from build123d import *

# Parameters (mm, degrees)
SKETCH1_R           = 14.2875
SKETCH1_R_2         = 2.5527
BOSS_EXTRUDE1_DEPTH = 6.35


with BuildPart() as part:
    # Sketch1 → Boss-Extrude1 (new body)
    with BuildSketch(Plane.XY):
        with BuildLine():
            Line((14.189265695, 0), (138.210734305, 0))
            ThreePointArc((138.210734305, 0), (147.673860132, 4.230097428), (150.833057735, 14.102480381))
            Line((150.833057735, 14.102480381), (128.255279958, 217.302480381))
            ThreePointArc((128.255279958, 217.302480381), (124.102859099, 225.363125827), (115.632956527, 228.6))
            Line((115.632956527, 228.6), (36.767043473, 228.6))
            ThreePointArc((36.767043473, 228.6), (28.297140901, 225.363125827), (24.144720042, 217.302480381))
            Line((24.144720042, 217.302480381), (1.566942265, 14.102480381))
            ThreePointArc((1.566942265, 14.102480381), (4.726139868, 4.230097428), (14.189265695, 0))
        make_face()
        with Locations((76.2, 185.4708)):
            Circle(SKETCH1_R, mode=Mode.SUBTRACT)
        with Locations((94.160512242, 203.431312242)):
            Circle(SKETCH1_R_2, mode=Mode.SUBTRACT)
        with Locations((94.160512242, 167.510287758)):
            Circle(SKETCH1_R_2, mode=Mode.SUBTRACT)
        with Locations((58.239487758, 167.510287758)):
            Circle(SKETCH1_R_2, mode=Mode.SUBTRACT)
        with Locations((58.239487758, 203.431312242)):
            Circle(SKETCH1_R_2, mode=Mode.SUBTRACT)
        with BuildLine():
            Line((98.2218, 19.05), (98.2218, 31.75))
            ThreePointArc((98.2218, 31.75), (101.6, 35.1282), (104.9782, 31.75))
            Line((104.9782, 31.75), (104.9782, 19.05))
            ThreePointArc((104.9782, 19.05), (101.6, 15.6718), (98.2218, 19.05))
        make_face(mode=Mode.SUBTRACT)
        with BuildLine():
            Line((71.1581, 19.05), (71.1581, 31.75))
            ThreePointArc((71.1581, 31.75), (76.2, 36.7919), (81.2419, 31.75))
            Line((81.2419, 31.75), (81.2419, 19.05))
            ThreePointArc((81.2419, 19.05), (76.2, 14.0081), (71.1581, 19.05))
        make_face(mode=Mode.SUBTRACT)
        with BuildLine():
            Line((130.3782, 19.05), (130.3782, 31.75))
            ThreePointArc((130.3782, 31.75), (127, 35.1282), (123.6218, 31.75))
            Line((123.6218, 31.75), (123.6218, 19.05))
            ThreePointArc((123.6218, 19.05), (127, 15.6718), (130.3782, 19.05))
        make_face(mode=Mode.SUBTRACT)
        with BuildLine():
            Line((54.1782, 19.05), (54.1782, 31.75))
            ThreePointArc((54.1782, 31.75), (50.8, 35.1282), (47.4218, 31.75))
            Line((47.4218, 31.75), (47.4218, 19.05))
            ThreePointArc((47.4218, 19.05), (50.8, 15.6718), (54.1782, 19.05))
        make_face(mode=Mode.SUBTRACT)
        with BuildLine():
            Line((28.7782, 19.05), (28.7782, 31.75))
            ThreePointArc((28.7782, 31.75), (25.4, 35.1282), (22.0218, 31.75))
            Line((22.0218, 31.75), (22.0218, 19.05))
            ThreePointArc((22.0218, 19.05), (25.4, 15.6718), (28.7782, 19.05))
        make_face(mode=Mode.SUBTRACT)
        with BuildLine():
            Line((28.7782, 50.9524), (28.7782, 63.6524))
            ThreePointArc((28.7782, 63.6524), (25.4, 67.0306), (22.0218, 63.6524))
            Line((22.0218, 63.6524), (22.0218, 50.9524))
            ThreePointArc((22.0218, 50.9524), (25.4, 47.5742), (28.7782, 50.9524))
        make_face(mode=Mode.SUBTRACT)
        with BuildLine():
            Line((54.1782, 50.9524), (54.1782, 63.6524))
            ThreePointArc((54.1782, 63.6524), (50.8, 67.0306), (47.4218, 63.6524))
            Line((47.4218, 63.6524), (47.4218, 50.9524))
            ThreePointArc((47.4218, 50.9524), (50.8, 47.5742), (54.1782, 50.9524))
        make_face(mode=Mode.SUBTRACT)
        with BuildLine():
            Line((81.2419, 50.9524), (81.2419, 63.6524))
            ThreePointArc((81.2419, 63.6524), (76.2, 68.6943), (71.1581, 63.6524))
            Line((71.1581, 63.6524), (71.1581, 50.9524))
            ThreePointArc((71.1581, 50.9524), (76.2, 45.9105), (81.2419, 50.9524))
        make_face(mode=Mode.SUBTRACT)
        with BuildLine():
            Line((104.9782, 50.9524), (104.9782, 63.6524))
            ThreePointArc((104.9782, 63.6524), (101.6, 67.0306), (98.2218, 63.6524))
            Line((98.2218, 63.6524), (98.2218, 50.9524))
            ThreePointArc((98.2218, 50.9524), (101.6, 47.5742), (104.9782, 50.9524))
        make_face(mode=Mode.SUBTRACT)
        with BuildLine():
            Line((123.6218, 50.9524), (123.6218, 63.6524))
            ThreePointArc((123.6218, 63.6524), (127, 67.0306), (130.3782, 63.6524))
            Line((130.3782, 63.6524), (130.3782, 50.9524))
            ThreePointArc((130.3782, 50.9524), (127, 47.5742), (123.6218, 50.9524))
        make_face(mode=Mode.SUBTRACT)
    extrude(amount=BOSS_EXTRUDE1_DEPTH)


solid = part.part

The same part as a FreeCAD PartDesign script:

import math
import FreeCAD as App
import Part
import Sketcher

V = App.Vector
Q = App.Units.Quantity

doc = App.newDocument("Part")
params = doc.addObject("Spreadsheet::Sheet", "Params")
for row, (alias, value) in enumerate([
    ("sketch1_radius", "0.5 in"),
    ("sketch1_diameter", "0.201 in"),
    ("sketch1_diameter2", "1.125 in"),
    ("sketch1_height", "0.5 in"),
    ("sketch1_radius2", "0.133 in"),
    ("pad1_length", "0.25 in"),
], start=1):
    params.set(f"A{row}", alias)
    params.set(f"B{row}", "=" + value)
    params.setAlias(f"B{row}", alias)

body = doc.addObject("PartDesign::Body", "Body")

# Sketch on XY plane
sketch1 = body.newObject("Sketcher::SketchObject", "Sketch")
sketch1.AttachmentSupport = (doc.getObject("XY_Plane"), [""])
sketch1.MapMode = "FlatFace"
sketch1.addGeometry([
    Part.LineSegment(V(14.189266, 0, 0), V(138.210734, 0, 0)),  # 0
    Part.ArcOfCircle(Part.Circle(V(138.210734, 12.7, 0), V(0, 0, 1), 12.7), math.radians(-90), math.radians(6.340192)),  # 1
    Part.LineSegment(V(150.833058, 14.10248, 0), V(128.25528, 217.30248, 0)),  # 2
    Part.ArcOfCircle(Part.Circle(V(115.632957, 215.9, 0), V(0, 0, 1), 12.7), math.radians(6.340192), math.radians(90)),  # 3
    Part.LineSegment(V(115.632957, 228.6, 0), V(36.767043, 228.6, 0)),  # 4
    Part.ArcOfCircle(Part.Circle(V(36.767043, 215.9, 0), V(0, 0, 1), 12.7), math.radians(90), math.radians(173.659808)),  # 5
    Part.LineSegment(V(24.14472, 217.30248, 0), V(1.566942, 14.10248, 0)),  # 6
    Part.ArcOfCircle(Part.Circle(V(14.189266, 12.7, 0), V(0, 0, 1), 12.7), math.radians(173.659808), math.radians(270)),  # 7
    Part.LineSegment(V(28.7782, 31.75, 0), V(28.7782, 19.05, 0)),  # 8
    Part.ArcOfCircle(Part.Circle(V(25.4, 19.05, 0), V(0, 0, 1), 3.3782), math.radians(180), math.radians(360)),  # 9
    Part.LineSegment(V(22.0218, 19.05, 0), V(22.0218, 31.75, 0)),  # 10
    Part.ArcOfCircle(Part.Circle(V(25.4, 31.75, 0), V(0, 0, 1), 3.3782), math.radians(0), math.radians(180)),  # 11
    Part.LineSegment(V(28.7782, 63.6524, 0), V(28.7782, 50.9524, 0)),  # 12
    Part.ArcOfCircle(Part.Circle(V(25.4, 50.9524, 0), V(0, 0, 1), 3.3782), math.radians(180), math.radians(360)),  # 13
    Part.LineSegment(V(22.0218, 50.9524, 0), V(22.0218, 63.6524, 0)),  # 14
    Part.ArcOfCircle(Part.Circle(V(25.4, 63.6524, 0), V(0, 0, 1), 3.3782), math.radians(0), math.radians(180)),  # 15
    Part.LineSegment(V(54.1782, 31.75, 0), V(54.1782, 19.05, 0)),  # 16
    Part.ArcOfCircle(Part.Circle(V(50.8, 19.05, 0), V(0, 0, 1), 3.3782), math.radians(180), math.radians(360)),  # 17
    Part.LineSegment(V(47.4218, 19.05, 0), V(47.4218, 31.75, 0)),  # 18
    Part.ArcOfCircle(Part.Circle(V(50.8, 31.75, 0), V(0, 0, 1), 3.3782), math.radians(0), math.radians(180)),  # 19
    Part.LineSegment(V(54.1782, 63.6524, 0), V(54.1782, 50.9524, 0)),  # 20
    Part.ArcOfCircle(Part.Circle(V(50.8, 50.9524, 0), V(0, 0, 1), 3.3782), math.radians(180), math.radians(360)),  # 21
    Part.LineSegment(V(47.4218, 50.9524, 0), V(47.4218, 63.6524, 0)),  # 22
    Part.ArcOfCircle(Part.Circle(V(50.8, 63.6524, 0), V(0, 0, 1), 3.3782), math.radians(0), math.radians(180)),  # 23
    Part.ArcOfCircle(Part.Circle(V(76.2, 19.05, 0), V(0, 0, 1), 5.0419), math.radians(180), math.radians(360)),  # 24
    Part.LineSegment(V(71.1581, 19.05, 0), V(71.1581, 31.75, 0)),  # 25
    Part.ArcOfCircle(Part.Circle(V(76.2, 31.75, 0), V(0, 0, 1), 5.0419), math.radians(0), math.radians(180)),  # 26
    Part.LineSegment(V(81.2419, 31.75, 0), V(81.2419, 19.05, 0)),  # 27
    Part.ArcOfCircle(Part.Circle(V(101.6, 19.05, 0), V(0, 0, 1), 3.3782), math.radians(180), math.radians(360)),  # 28
    Part.LineSegment(V(98.2218, 19.05, 0), V(98.2218, 31.75, 0)),  # 29
    Part.ArcOfCircle(Part.Circle(V(101.6, 31.75, 0), V(0, 0, 1), 3.3782), math.radians(0), math.radians(180)),  # 30
    Part.LineSegment(V(104.9782, 31.75, 0), V(104.9782, 19.05, 0)),  # 31
    Part.LineSegment(V(81.2419, 63.6524, 0), V(81.2419, 50.9524, 0)),  # 32
    Part.ArcOfCircle(Part.Circle(V(76.2, 50.9524, 0), V(0, 0, 1), 5.0419), math.radians(180), math.radians(360)),  # 33
    Part.LineSegment(V(71.1581, 50.9524, 0), V(71.1581, 63.6524, 0)),  # 34
    Part.ArcOfCircle(Part.Circle(V(76.2, 63.6524, 0), V(0, 0, 1), 5.0419), math.radians(0), math.radians(180)),  # 35
    Part.LineSegment(V(104.9782, 63.6524, 0), V(104.9782, 50.9524, 0)),  # 36
    Part.ArcOfCircle(Part.Circle(V(101.6, 50.9524, 0), V(0, 0, 1), 3.3782), math.radians(180), math.radians(360)),  # 37
    Part.LineSegment(V(98.2218, 50.9524, 0), V(98.2218, 63.6524, 0)),  # 38
    Part.ArcOfCircle(Part.Circle(V(101.6, 63.6524, 0), V(0, 0, 1), 3.3782), math.radians(0), math.radians(180)),  # 39
    Part.LineSegment(V(130.3782, 31.75, 0), V(130.3782, 19.05, 0)),  # 40
    Part.ArcOfCircle(Part.Circle(V(127, 19.05, 0), V(0, 0, 1), 3.3782), math.radians(180), math.radians(360)),  # 41
    Part.LineSegment(V(123.6218, 19.05, 0), V(123.6218, 31.75, 0)),  # 42
    Part.ArcOfCircle(Part.Circle(V(127, 31.75, 0), V(0, 0, 1), 3.3782), math.radians(0), math.radians(180)),  # 43
    Part.ArcOfCircle(Part.Circle(V(127, 50.9524, 0), V(0, 0, 1), 3.3782), math.radians(180), math.radians(360)),  # 44
    Part.LineSegment(V(123.6218, 50.9524, 0), V(123.6218, 63.6524, 0)),  # 45
    Part.ArcOfCircle(Part.Circle(V(127, 63.6524, 0), V(0, 0, 1), 3.3782), math.radians(0), math.radians(180)),  # 46
    Part.LineSegment(V(130.3782, 63.6524, 0), V(130.3782, 50.9524, 0)),  # 47
    Part.Circle(V(58.239488, 167.510288, 0), V(0, 0, 1), 2.5527),  # 48
    Part.Circle(V(58.239488, 203.431312, 0), V(0, 0, 1), 2.5527),  # 49
    Part.Circle(V(94.160512, 167.510288, 0), V(0, 0, 1), 2.5527),  # 50
    Part.Circle(V(76.2, 185.4708, 0), V(0, 0, 1), 14.2875),  # 51
    Part.Circle(V(94.160512, 203.431312, 0), V(0, 0, 1), 2.5527),  # 52
], False)
sketch1.addConstraint([
    Sketcher.Constraint("Tangent", 0, 2, 1, 1),
    Sketcher.Constraint("Tangent", 1, 2, 2, 1),
    Sketcher.Constraint("Tangent", 2, 2, 3, 1),
    Sketcher.Constraint("Tangent", 3, 2, 4, 1),
    Sketcher.Constraint("Tangent", 4, 2, 5, 1),
    Sketcher.Constraint("Tangent", 5, 2, 6, 1),
    Sketcher.Constraint("Tangent", 6, 2, 7, 1),
    Sketcher.Constraint("Tangent", 7, 2, 0, 1),
    Sketcher.Constraint("Tangent", 8, 2, 9, 2),
    Sketcher.Constraint("Tangent", 9, 1, 10, 1),
    Sketcher.Constraint("Tangent", 10, 2, 11, 2),
    Sketcher.Constraint("Tangent", 11, 1, 8, 1),
    Sketcher.Constraint("Tangent", 12, 2, 13, 2),
    Sketcher.Constraint("Tangent", 13, 1, 14, 1),
    Sketcher.Constraint("Tangent", 14, 2, 15, 2),
    Sketcher.Constraint("Tangent", 15, 1, 12, 1),
    Sketcher.Constraint("Tangent", 16, 2, 17, 2),
    Sketcher.Constraint("Tangent", 17, 1, 18, 1),
    Sketcher.Constraint("Tangent", 18, 2, 19, 2),
    Sketcher.Constraint("Tangent", 19, 1, 16, 1),
    Sketcher.Constraint("Tangent", 20, 2, 21, 2),
    Sketcher.Constraint("Tangent", 21, 1, 22, 1),
    Sketcher.Constraint("Tangent", 22, 2, 23, 2),
    Sketcher.Constraint("Tangent", 23, 1, 20, 1),
    Sketcher.Constraint("Tangent", 24, 1, 25, 1),
    Sketcher.Constraint("Tangent", 25, 2, 26, 2),
    Sketcher.Constraint("Tangent", 26, 1, 27, 1),
    Sketcher.Constraint("Tangent", 27, 2, 24, 2),
    Sketcher.Constraint("Tangent", 28, 1, 29, 1),
    Sketcher.Constraint("Tangent", 29, 2, 30, 2),
    Sketcher.Constraint("Tangent", 30, 1, 31, 1),
    Sketcher.Constraint("Tangent", 31, 2, 28, 2),
    Sketcher.Constraint("Tangent", 32, 2, 33, 2),
    Sketcher.Constraint("Tangent", 33, 1, 34, 1),
    Sketcher.Constraint("Tangent", 34, 2, 35, 2),
    Sketcher.Constraint("Tangent", 35, 1, 32, 1),
    Sketcher.Constraint("Tangent", 36, 2, 37, 2),
    Sketcher.Constraint("Tangent", 37, 1, 38, 1),
    Sketcher.Constraint("Tangent", 38, 2, 39, 2),
    Sketcher.Constraint("Tangent", 39, 1, 36, 1),
    Sketcher.Constraint("Tangent", 40, 2, 41, 2),
    Sketcher.Constraint("Tangent", 41, 1, 42, 1),
    Sketcher.Constraint("Tangent", 42, 2, 43, 2),
    Sketcher.Constraint("Tangent", 43, 1, 40, 1),
    Sketcher.Constraint("Tangent", 44, 1, 45, 1),
    Sketcher.Constraint("Tangent", 45, 2, 46, 2),
    Sketcher.Constraint("Tangent", 46, 1, 47, 1),
    Sketcher.Constraint("Tangent", 47, 2, 44, 2),
    Sketcher.Constraint("Horizontal", 0),
    Sketcher.Constraint("Horizontal", 4),
    Sketcher.Constraint("Vertical", 8),
    Sketcher.Constraint("Vertical", 10),
    Sketcher.Constraint("Vertical", 12),
    Sketcher.Constraint("Vertical", 14),
    Sketcher.Constraint("Vertical", 16),
    Sketcher.Constraint("Vertical", 18),
    Sketcher.Constraint("Vertical", 20),
    Sketcher.Constraint("Vertical", 22),
    Sketcher.Constraint("Vertical", 25),
    Sketcher.Constraint("Vertical", 27),
    Sketcher.Constraint("Vertical", 29),
    Sketcher.Constraint("Vertical", 31),
    Sketcher.Constraint("Vertical", 32),
    Sketcher.Constraint("Vertical", 34),
    Sketcher.Constraint("Vertical", 36),
    Sketcher.Constraint("Vertical", 38),
    Sketcher.Constraint("Vertical", 40),
    Sketcher.Constraint("Vertical", 42),
    Sketcher.Constraint("Vertical", 45),
    Sketcher.Constraint("Vertical", 47),
    Sketcher.Constraint("Equal", 1, 3),
    Sketcher.Constraint("Equal", 3, 5),
    Sketcher.Constraint("Equal", 5, 7),
    Sketcher.Constraint("Equal", 11, 13),
    Sketcher.Constraint("Equal", 15, 17),
    Sketcher.Constraint("Equal", 19, 21),
    Sketcher.Constraint("Equal", 23, 28),
    Sketcher.Constraint("Equal", 26, 33),
    Sketcher.Constraint("Equal", 30, 37),
    Sketcher.Constraint("Equal", 39, 41),
    Sketcher.Constraint("Equal", 43, 44),
    Sketcher.Constraint("Equal", 48, 49),
    Sketcher.Constraint("Equal", 49, 50),
    Sketcher.Constraint("Equal", 50, 52),
    Sketcher.Constraint("PointOnObject", 0, 2, -1),
    Sketcher.Constraint("Horizontal", 9, 3, 17, 3),
    Sketcher.Constraint("Horizontal", 11, 3, 19, 3),
    Sketcher.Constraint("Horizontal", 13, 3, 21, 3),
    Sketcher.Constraint("Horizontal", 15, 3, 23, 3),
    Sketcher.Constraint("Horizontal", 17, 3, 24, 3),
    Sketcher.Constraint("Horizontal", 19, 3, 26, 3),
    Sketcher.Constraint("Horizontal", 24, 3, 28, 3),
    Sketcher.Constraint("Horizontal", 26, 3, 30, 3),
    Sketcher.Constraint("Horizontal", 21, 3, 33, 3),
    Sketcher.Constraint("Horizontal", 23, 3, 35, 3),
    Sketcher.Constraint("Horizontal", 33, 3, 37, 3),
    Sketcher.Constraint("Horizontal", 35, 3, 39, 3),
    Sketcher.Constraint("Horizontal", 28, 3, 41, 3),
    Sketcher.Constraint("Horizontal", 30, 3, 43, 3),
    Sketcher.Constraint("Horizontal", 37, 3, 44, 3),
    Sketcher.Constraint("Horizontal", 39, 3, 46, 3),
    Sketcher.Constraint("Horizontal", 48, 3, 50, 3),
    Sketcher.Constraint("Horizontal", 49, 3, 52, 3),
    Sketcher.Constraint("Horizontal", 2, 2, 5, 2),
    Sketcher.Constraint("Vertical", 11, 3, 13, 3),
    Sketcher.Constraint("Vertical", 19, 3, 21, 3),
    Sketcher.Constraint("Vertical", 26, 3, 33, 3),
    Sketcher.Constraint("Vertical", 30, 3, 37, 3),
    Sketcher.Constraint("Vertical", 43, 3, 44, 3),
    Sketcher.Constraint("Vertical", 48, 3, 49, 3),
    Sketcher.Constraint("Vertical", 35, 3, 51, 3),
    Sketcher.Constraint("Vertical", 50, 3, 52, 3),
    Sketcher.Constraint("Equal", 10, 12),
    Sketcher.Constraint("Radius", 1, Q("0.5 in")),
    Sketcher.Constraint("Diameter", 48, Q("0.201 in")),
    Sketcher.Constraint("Diameter", 51, Q("1.125 in")),
    Sketcher.Constraint("DistanceY", 8, 2, 8, 1, Q("0.5 in")),
    Sketcher.Constraint("DistanceX", -1, 1, 9, 3, Q("1 in")),
    Sketcher.Constraint("DistanceX", -1, 1, 17, 3, Q("2 in")),
    Sketcher.Constraint("DistanceX", -1, 1, 24, 3, Q("3 in")),
    Sketcher.Constraint("DistanceX", -1, 1, 28, 3, Q("4 in")),
    Sketcher.Constraint("DistanceX", -1, 1, 41, 3, Q("5 in")),
    Sketcher.Constraint("DistanceY", -1, 1, 3, 2, Q("9 in")),
    Sketcher.Constraint("Radius", 9, Q("0.133 in")),
    Sketcher.Constraint("Radius", 24, Q("0.1985 in")),
    Sketcher.Constraint("DistanceY", -1, 1, 9, 3, Q("0.75 in")),
    Sketcher.Constraint("DistanceY", -1, 1, 13, 3, Q("2.006 in")),
    Sketcher.Constraint("DistanceY", -1, 1, 51, 3, Q("7.302 in")),
    Sketcher.Constraint("DistanceX", 0, 1, 0, 2, Q("124.021469 mm")),
    Sketcher.Constraint("DistanceX", 4, 2, 4, 1, Q("78.865913 mm")),
    Sketcher.Constraint("DistanceX", -1, 1, 2, 2, Q("128.25528 mm")),
    Sketcher.Constraint("DistanceX", -1, 1, 48, 3, Q("58.239488 mm")),
    Sketcher.Constraint("DistanceY", -1, 1, 48, 3, Q("167.510288 mm")),
    Sketcher.Constraint("DistanceY", -1, 1, 49, 3, Q("203.431312 mm")),
    Sketcher.Constraint("DistanceX", -1, 1, 50, 3, Q("94.160512 mm")),
])
sketch1.setExpression("Constraints[113]", "Params.sketch1_radius")
sketch1.setExpression("Constraints[114]", "Params.sketch1_diameter")
sketch1.setExpression("Constraints[115]", "Params.sketch1_diameter2")
sketch1.setExpression("Constraints[116]", "Params.sketch1_height")
sketch1.setExpression("Constraints[123]", "Params.sketch1_radius2")
pad1 = body.newObject("PartDesign::Pad", "Pad")
pad1.Profile = sketch1
pad1.setExpression("Length", "Params.pad1_length")

doc.recompute()
